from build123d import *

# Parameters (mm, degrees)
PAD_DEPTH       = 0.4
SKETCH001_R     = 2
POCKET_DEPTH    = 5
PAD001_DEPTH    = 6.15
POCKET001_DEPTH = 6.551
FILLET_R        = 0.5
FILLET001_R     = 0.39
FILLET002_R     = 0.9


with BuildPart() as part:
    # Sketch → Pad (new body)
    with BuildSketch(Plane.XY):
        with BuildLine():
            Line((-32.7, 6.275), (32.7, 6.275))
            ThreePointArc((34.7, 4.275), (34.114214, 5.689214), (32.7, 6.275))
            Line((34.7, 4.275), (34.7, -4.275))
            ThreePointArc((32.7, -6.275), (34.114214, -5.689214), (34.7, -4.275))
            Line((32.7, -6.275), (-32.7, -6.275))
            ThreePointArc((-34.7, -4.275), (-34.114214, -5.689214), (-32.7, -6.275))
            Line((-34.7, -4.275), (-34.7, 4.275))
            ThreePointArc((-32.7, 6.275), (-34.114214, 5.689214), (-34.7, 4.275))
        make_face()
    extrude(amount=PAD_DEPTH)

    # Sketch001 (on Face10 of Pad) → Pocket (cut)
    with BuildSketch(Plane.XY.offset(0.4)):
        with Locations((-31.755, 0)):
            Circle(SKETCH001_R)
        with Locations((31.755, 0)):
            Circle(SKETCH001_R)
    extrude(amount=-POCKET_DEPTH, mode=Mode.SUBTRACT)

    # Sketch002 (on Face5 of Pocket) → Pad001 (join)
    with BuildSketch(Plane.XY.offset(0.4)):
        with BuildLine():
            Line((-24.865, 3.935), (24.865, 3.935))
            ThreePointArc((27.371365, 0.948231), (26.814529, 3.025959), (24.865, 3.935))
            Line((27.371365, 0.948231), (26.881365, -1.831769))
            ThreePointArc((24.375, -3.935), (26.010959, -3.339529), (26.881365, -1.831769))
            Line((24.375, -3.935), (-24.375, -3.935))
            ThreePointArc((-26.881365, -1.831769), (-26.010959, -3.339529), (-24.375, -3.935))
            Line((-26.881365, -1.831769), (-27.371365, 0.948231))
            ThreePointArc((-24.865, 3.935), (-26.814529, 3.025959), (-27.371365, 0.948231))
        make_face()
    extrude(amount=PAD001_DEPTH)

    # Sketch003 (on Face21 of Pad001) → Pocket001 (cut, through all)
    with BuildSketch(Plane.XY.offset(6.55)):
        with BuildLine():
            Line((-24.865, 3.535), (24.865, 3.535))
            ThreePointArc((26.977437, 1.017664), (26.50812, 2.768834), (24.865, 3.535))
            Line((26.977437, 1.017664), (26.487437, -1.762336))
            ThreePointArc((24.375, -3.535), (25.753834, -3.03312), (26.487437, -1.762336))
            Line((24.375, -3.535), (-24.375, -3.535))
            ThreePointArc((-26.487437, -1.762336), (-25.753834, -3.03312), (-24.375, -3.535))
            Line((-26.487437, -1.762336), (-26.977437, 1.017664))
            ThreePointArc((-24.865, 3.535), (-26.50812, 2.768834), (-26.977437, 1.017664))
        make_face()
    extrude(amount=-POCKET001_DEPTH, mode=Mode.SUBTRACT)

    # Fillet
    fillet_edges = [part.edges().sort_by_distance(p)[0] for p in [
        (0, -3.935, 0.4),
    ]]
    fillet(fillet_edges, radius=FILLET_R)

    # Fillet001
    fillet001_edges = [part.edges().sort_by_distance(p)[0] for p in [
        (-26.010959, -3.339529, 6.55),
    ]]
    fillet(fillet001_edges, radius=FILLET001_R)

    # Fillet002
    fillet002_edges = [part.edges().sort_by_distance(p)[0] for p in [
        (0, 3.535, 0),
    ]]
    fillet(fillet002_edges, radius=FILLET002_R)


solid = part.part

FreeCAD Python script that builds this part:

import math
import FreeCAD as App
import Part
import Sketcher
from FreeCAD import Vector


def edges_at(feature, points):
    """Names of the edges that pass closest to the given points."""
    edges = feature.Shape.Edges
    near = lambda p: min(range(len(edges)), key=lambda i: edges[i].distToShape(Part.Vertex(*p))[0])
    return sorted({f"Edge{near(p) + 1}" for p in points})

doc = App.newDocument("Part")
body = doc.addObject("PartDesign::Body", "Body")

sketch1 = body.newObject("Sketcher::SketchObject", "Sketch")
sketch1.AttachmentSupport = (doc.getObject("XY_Plane"), [""])
sketch1.MapMode = "FlatFace"
sketch1.addGeometry([
    Part.LineSegment(Vector(32.7, 6.3, 0), Vector(-32.7, 6.3, 0)),
    Part.ArcOfCircle(Part.Circle(Vector(-32.7, 4.3, 0), Vector(0, 0, 1), 2), math.radians(90), math.radians(180)),
    Part.LineSegment(Vector(-34.7, 4.3, 0), Vector(-34.7, -4.3, 0)),
    Part.ArcOfCircle(Part.Circle(Vector(-32.7, -4.3, 0), Vector(0, 0, 1), 2), math.radians(180), math.radians(270)),
    Part.LineSegment(Vector(-32.7, -6.3, 0), Vector(32.7, -6.3, 0)),
    Part.ArcOfCircle(Part.Circle(Vector(32.7, -4.3, 0), Vector(0, 0, 1), 2), math.radians(-90), math.radians(0)),
    Part.LineSegment(Vector(34.7, -4.3, 0), Vector(34.7, 4.3, 0)),
    Part.ArcOfCircle(Part.Circle(Vector(32.7, 4.3, 0), Vector(0, 0, 1), 2), math.radians(0), math.radians(90)),
], False)
sketch1.addConstraint([
    Sketcher.Constraint("Tangent", 0, 2, 1, 1),
    Sketcher.Constraint("Tangent", 1, 2, 2, 1),
    Sketcher.Constraint("Tangent", 2, 2, 3, 1),
    Sketcher.Constraint("Tangent", 3, 2, 4, 1),
    Sketcher.Constraint("Tangent", 4, 2, 5, 1),
    Sketcher.Constraint("Tangent", 5, 2, 6, 1),
    Sketcher.Constraint("Tangent", 6, 2, 7, 1),
    Sketcher.Constraint("Tangent", 7, 2, 0, 1),
    Sketcher.Constraint("Horizontal", 0),
    Sketcher.Constraint("Vertical", 2),
    Sketcher.Constraint("Horizontal", 4),
    Sketcher.Constraint("Vertical", 6),
    Sketcher.Constraint("Equal", 1, 3),
    Sketcher.Constraint("Equal", 3, 5),
    Sketcher.Constraint("Equal", 5, 7),
    Sketcher.Constraint("Symmetric", 1, 3, 5, 3, -1, 1),
    Sketcher.Constraint("Radius", 1, 1.999999),
    Sketcher.Constraint("DistanceX", 0, 2, 0, 1, 65.4),
    Sketcher.Constraint("DistanceY", 2, 2, 2, 1, 8.55),
])
pad1 = body.newObject("PartDesign::Pad", "Pad")
pad1.Profile = sketch1
pad1.Length = 0.4

sketch2 = body.newObject("Sketcher::SketchObject", "Sketch001")
sketch2.AttachmentSupport = (doc.getObject("XY_Plane"), [""])
sketch2.MapMode = "FlatFace"
sketch2.AttachmentOffset = App.Placement(Vector(0, 0, 0.4), App.Rotation())
sketch2.addGeometry([
    Part.Circle(Vector(-31.8, 0, 0), Vector(0, 0, 1), 2),
    Part.Circle(Vector(31.8, 0, 0), Vector(0, 0, 1), 2),
], False)
sketch2.addConstraint([
    Sketcher.Constraint("Equal", 0, 1),
    Sketcher.Constraint("Symmetric", 0, 3, 1, 3, -1, 1),
    Sketcher.Constraint("PointOnObject", 0, 3, -1),
    Sketcher.Constraint("Diameter", 0, 4.0),
    Sketcher.Constraint("DistanceX", 0, 3, 1, 3, 63.51),
])
pocket1 = body.newObject("PartDesign::Pocket", "Pocket")
pocket1.Profile = sketch2
pocket1.Length = 5

sketch3 = body.newObject("Sketcher::SketchObject", "Sketch002")
sketch3.AttachmentSupport = (doc.getObject("XY_Plane"), [""])
sketch3.MapMode = "FlatFace"
sketch3.AttachmentOffset = App.Placement(Vector(0, 0, 0.4), App.Rotation())
sketch3.addGeometry([
    Part.LineSegment(Vector(24.9, 3.9, 0), Vector(-24.9, 3.9, 0)),
    Part.ArcOfCircle(Part.Circle(Vector(-24.9, 1.4, 0), Vector(0, 0, 1), 2.5), math.radians(90), math.radians(190)),
    Part.LineSegment(Vector(-27.4, 0.9, 0), Vector(-26.9, -1.8, 0)),
    Part.ArcOfCircle(Part.Circle(Vector(-24.4, -1.4, 0), Vector(0, 0, 1), 2.5), math.radians(-170), math.radians(-90)),
    Part.LineSegment(Vector(-24.4, -3.9, 0), Vector(24.4, -3.9, 0)),
    Part.ArcOfCircle(Part.Circle(Vector(24.4, -1.4, 0), Vector(0, 0, 1), 2.5), math.radians(-90), math.radians(-10)),
    Part.LineSegment(Vector(26.9, -1.8, 0), Vector(27.4, 0.9, 0)),
    Part.ArcOfCircle(Part.Circle(Vector(24.9, 1.4, 0), Vector(0, 0, 1), 2.5), math.radians(-10), math.radians(90)),
], False)
sketch3.addConstraint([
    Sketcher.Constraint("Tangent", 0, 2, 1, 1),
    Sketcher.Constraint("Tangent", 1, 2, 2, 1),
    Sketcher.Constraint("Tangent", 2, 2, 3, 1),
    Sketcher.Constraint("Tangent", 3, 2, 4, 1),
    Sketcher.Constraint("Tangent", 4, 2, 5, 1),
    Sketcher.Constraint("Tangent", 5, 2, 6, 1),
    Sketcher.Constraint("Tangent", 6, 2, 7, 1),
    Sketcher.Constraint("Tangent", 7, 2, 0, 1),
    Sketcher.Constraint("Horizontal", 0),
    Sketcher.Constraint("Horizontal", 4),
    Sketcher.Constraint("Equal", 1, 3),
    Sketcher.Constraint("Equal", 3, 5),
    Sketcher.Constraint("Equal", 5, 7),
    Sketcher.Constraint("Symmetric", 2, 2, 5, 2, -2),
    Sketcher.Constraint("Radius", 1, 2.545),
    Sketcher.Constraint("DistanceX", 0, 2, 0, 1, 49.73),
    Sketcher.Constraint("DistanceX", 4, 1, 4, 2, 48.75),
    Sketcher.Constraint("DistanceY", -1, 1, 1, 3, 1.39),
    Sketcher.Constraint("DistanceY", 3, 3, -1, 1, 1.39),
])
pad2 = body.newObject("PartDesign::Pad", "Pad001")
pad2.Profile = sketch3
pad2.Length = 6.15

sketch4 = body.newObject("Sketcher::SketchObject", "Sketch003")
sketch4.AttachmentSupport = (doc.getObject("XY_Plane"), [""])
sketch4.MapMode = "FlatFace"
sketch4.AttachmentOffset = App.Placement(Vector(0, 0, 6.55), App.Rotation())
sketch4.addGeometry([
    Part.LineSegment(Vector(24.9, 3.5, 0), Vector(-24.9, 3.5, 0)),
    Part.ArcOfCircle(Part.Circle(Vector(-24.9, 1.4, 0), Vector(0, 0, 1), 2.1), math.radians(90), math.radians(190)),
    Part.LineSegment(Vector(-27, 1, 0), Vector(-26.5, -1.8, 0)),
    Part.ArcOfCircle(Part.Circle(Vector(-24.4, -1.4, 0), Vector(0, 0, 1), 2.1), math.radians(-170), math.radians(-90)),
    Part.LineSegment(Vector(-24.4, -3.5, 0), Vector(24.4, -3.5, 0)),
    Part.ArcOfCircle(Part.Circle(Vector(24.4, -1.4, 0), Vector(0, 0, 1), 2.1), math.radians(-90), math.radians(-10)),
    Part.LineSegment(Vector(26.5, -1.8, 0), Vector(27, 1, 0)),
    Part.ArcOfCircle(Part.Circle(Vector(24.9, 1.4, 0), Vector(0, 0, 1), 2.1), math.radians(-10), math.radians(90)),
], False)
sketch4.addConstraint([
    Sketcher.Constraint("Tangent", 0, 2, 1, 1),
    Sketcher.Constraint("Tangent", 1, 2, 2, 1),
    Sketcher.Constraint("Tangent", 2, 2, 3, 1),
    Sketcher.Constraint("Tangent", 3, 2, 4, 1),
    Sketcher.Constraint("Tangent", 4, 2, 5, 1),
    Sketcher.Constraint("Tangent", 5, 2, 6, 1),
    Sketcher.Constraint("Tangent", 6, 2, 7, 1),
    Sketcher.Constraint("Tangent", 7, 2, 0, 1),
    Sketcher.Constraint("Horizontal", 0),
    Sketcher.Constraint("Horizontal", 4),
    Sketcher.Constraint("Equal", 1, 3),
    Sketcher.Constraint("Equal", 3, 5),
    Sketcher.Constraint("Equal", 5, 7),
    Sketcher.Constraint("Symmetric", 2, 2, 5, 2, -2),
    Sketcher.Constraint("Radius", 1, 2.144999),
    Sketcher.Constraint("DistanceX", 0, 2, 0, 1, 49.73),
    Sketcher.Constraint("DistanceX", 4, 1, 4, 2, 48.75),
    Sketcher.Constraint("DistanceY", -1, 1, 1, 3, 1.390001),
    Sketcher.Constraint("DistanceY", 3, 3, -1, 1, 1.390002),
])
pocket2 = body.newObject("PartDesign::Pocket", "Pocket001")
pocket2.Profile = sketch4
pocket2.Type = "ThroughAll"
doc.recompute()

fillet = body.newObject("PartDesign::Fillet", "Fillet")
fillet.Base = (pocket2, edges_at(pocket2, [(0, -3.935, 0.4)]))
fillet.Radius = 0.5
doc.recompute()

fillet2 = body.newObject("PartDesign::Fillet", "Fillet001")
fillet2.Base = (fillet, edges_at(fillet, [(-26.011, -3.34, 6.55)]))
fillet2.Radius = 0.39
doc.recompute()

fillet3 = body.newObject("PartDesign::Fillet", "Fillet002")
fillet3.Base = (fillet2, edges_at(fillet2, [(0, 3.535, 0)]))
fillet3.Radius = 0.9

doc.recompute()
